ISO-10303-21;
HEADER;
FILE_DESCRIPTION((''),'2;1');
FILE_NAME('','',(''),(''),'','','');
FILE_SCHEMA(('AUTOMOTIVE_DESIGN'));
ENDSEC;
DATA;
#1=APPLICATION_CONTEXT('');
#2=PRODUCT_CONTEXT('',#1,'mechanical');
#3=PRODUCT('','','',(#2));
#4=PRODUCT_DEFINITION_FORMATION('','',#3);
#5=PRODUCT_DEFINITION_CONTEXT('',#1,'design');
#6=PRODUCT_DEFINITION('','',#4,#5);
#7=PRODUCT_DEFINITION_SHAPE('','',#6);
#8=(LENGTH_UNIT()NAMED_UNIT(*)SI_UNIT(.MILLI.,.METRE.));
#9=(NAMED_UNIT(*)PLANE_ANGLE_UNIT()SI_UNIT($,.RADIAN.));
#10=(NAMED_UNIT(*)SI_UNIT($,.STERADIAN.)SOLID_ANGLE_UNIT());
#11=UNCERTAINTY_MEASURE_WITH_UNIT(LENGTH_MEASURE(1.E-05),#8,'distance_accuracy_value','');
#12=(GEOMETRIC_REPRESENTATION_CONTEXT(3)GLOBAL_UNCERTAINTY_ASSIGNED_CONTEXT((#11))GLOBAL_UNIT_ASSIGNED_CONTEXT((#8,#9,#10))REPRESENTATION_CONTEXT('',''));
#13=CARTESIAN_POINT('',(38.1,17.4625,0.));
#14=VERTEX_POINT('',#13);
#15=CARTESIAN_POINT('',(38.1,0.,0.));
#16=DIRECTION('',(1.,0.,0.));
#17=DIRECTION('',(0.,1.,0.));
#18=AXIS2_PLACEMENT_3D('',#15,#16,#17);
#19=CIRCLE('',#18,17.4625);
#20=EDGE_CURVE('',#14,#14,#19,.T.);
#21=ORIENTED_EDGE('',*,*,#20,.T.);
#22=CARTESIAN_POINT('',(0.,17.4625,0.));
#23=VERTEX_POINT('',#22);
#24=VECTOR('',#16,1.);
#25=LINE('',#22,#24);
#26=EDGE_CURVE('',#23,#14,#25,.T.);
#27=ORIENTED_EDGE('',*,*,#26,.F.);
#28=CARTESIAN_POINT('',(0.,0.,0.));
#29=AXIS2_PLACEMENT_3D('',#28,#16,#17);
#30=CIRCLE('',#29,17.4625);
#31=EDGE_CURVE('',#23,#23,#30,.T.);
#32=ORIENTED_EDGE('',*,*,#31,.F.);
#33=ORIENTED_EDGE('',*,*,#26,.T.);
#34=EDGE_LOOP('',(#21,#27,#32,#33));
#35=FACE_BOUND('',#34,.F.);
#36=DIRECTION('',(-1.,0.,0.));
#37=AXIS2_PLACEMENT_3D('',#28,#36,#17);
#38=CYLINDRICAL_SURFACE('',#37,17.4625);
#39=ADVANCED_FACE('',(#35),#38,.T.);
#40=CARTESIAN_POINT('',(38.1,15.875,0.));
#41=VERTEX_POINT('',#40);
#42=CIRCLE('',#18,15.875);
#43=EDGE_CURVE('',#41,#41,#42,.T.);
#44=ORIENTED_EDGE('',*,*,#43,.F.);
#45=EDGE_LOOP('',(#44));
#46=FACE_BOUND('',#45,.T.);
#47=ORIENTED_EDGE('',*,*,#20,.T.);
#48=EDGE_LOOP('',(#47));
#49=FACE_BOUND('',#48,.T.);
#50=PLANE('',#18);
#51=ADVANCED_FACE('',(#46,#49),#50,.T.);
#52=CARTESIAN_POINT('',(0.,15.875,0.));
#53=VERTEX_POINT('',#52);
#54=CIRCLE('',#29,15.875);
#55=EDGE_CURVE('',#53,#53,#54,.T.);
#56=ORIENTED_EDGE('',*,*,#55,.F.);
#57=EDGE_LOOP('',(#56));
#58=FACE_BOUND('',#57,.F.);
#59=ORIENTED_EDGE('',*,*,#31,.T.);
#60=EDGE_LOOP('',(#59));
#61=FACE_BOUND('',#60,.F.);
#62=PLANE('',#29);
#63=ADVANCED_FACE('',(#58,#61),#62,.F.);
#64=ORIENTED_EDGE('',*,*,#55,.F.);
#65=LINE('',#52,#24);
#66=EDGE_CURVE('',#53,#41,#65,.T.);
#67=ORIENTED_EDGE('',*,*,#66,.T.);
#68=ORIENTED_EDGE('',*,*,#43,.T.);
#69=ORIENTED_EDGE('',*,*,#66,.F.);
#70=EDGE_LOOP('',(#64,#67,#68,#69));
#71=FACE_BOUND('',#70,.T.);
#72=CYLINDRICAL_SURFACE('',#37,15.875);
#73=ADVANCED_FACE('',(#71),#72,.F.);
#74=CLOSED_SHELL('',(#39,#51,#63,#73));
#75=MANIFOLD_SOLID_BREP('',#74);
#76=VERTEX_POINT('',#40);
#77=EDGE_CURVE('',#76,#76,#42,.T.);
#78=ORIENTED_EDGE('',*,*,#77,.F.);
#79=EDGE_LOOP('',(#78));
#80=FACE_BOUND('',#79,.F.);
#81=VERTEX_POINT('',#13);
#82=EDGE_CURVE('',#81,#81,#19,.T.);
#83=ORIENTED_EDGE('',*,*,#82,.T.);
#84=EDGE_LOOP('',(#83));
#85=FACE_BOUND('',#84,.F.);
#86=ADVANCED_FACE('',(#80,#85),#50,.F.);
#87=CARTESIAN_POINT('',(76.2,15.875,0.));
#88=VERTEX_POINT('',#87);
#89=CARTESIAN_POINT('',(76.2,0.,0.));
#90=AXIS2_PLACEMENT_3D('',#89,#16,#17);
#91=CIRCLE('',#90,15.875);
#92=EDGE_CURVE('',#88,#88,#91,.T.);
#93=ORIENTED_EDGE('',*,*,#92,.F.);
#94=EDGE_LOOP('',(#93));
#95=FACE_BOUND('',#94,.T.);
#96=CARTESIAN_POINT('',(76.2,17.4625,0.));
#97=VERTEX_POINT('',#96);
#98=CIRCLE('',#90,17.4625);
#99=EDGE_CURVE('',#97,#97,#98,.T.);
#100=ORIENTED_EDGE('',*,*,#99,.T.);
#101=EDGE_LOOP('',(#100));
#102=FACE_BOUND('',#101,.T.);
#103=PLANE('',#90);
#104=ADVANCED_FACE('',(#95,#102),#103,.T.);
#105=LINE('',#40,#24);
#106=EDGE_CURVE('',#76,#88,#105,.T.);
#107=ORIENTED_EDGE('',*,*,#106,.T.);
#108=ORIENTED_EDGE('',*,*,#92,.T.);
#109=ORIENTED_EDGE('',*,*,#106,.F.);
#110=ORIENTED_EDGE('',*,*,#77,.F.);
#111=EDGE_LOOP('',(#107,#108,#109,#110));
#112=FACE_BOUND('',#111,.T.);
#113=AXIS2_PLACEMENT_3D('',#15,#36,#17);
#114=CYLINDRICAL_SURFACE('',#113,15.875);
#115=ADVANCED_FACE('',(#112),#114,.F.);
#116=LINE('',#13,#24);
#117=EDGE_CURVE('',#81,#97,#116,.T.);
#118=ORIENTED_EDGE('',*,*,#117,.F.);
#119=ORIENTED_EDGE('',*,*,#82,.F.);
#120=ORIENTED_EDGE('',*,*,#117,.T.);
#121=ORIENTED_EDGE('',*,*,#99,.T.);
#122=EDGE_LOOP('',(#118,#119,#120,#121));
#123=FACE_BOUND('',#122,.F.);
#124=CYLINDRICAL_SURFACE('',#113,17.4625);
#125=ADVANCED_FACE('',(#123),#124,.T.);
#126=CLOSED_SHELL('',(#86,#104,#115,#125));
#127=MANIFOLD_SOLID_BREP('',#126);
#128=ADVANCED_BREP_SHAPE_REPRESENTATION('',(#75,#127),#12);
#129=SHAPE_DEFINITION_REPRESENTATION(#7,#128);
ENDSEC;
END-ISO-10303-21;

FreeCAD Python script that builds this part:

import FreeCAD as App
import Part
import Sketcher
from FreeCAD import Vector
Q = App.Units.Quantity

doc = App.newDocument("Part")
body = doc.addObject("PartDesign::Body", "Body")

# Sketch on YZ plane
sketch1 = body.newObject("Sketcher::SketchObject", "Sketch")
sketch1.AttachmentSupport = (doc.getObject("YZ_Plane"), [""])
sketch1.MapMode = "FlatFace"
sketch1.addGeometry(Part.Circle(Vector(0, 0, 0), Vector(0, 0, 1), 17.4625), False)
sketch1.addGeometry(Part.Circle(Vector(0, 0, 0), Vector(0, 0, 1), 15.875), False)
sketch1.addConstraint(Sketcher.Constraint("Coincident", 0, 3, -1, 1))
sketch1.addConstraint(Sketcher.Constraint("Coincident", 1, 3, -1, 1))
sketch1.addConstraint(Sketcher.Constraint("Diameter", 1, Q("1.25 in")))
sketch1.addConstraint(Sketcher.Constraint("Diameter", 0, Q("1.375 in")))
pad1 = body.newObject("PartDesign::Pad", "Pad")
pad1.Profile = sketch1
pad1.Length = Q("1.5 in")
body2 = doc.addObject("PartDesign::Body", "Body001")

# Sketch on YZ plane
sketch2 = body2.newObject("Sketcher::SketchObject", "Sketch001")
sketch2.AttachmentSupport = (doc.getObject("YZ_Plane001"), [""])
sketch2.MapMode = "FlatFace"
sketch2.AttachmentOffset = App.Placement(Vector(0, 0, 1.5 * 25.4), App.Rotation())
sketch2.addGeometry(Part.Circle(Vector(0, 0, 0), Vector(0, 0, 1), 17.4625), False)
sketch2.addGeometry(Part.Circle(Vector(0, 0, 0), Vector(0, 0, 1), 15.875), False)
sketch2.addConstraint(Sketcher.Constraint("Coincident", 0, 3, -1, 1))
sketch2.addConstraint(Sketcher.Constraint("Coincident", 1, 3, -1, 1))
sketch2.addConstraint(Sketcher.Constraint("Diameter", 1, Q("1.25 in")))
sketch2.addConstraint(Sketcher.Constraint("Diameter", 0, Q("1.375 in")))
pad2 = body2.newObject("PartDesign::Pad", "Pad001")
pad2.Profile = sketch2
pad2.Length = Q("1.5 in")

doc.recompute()
